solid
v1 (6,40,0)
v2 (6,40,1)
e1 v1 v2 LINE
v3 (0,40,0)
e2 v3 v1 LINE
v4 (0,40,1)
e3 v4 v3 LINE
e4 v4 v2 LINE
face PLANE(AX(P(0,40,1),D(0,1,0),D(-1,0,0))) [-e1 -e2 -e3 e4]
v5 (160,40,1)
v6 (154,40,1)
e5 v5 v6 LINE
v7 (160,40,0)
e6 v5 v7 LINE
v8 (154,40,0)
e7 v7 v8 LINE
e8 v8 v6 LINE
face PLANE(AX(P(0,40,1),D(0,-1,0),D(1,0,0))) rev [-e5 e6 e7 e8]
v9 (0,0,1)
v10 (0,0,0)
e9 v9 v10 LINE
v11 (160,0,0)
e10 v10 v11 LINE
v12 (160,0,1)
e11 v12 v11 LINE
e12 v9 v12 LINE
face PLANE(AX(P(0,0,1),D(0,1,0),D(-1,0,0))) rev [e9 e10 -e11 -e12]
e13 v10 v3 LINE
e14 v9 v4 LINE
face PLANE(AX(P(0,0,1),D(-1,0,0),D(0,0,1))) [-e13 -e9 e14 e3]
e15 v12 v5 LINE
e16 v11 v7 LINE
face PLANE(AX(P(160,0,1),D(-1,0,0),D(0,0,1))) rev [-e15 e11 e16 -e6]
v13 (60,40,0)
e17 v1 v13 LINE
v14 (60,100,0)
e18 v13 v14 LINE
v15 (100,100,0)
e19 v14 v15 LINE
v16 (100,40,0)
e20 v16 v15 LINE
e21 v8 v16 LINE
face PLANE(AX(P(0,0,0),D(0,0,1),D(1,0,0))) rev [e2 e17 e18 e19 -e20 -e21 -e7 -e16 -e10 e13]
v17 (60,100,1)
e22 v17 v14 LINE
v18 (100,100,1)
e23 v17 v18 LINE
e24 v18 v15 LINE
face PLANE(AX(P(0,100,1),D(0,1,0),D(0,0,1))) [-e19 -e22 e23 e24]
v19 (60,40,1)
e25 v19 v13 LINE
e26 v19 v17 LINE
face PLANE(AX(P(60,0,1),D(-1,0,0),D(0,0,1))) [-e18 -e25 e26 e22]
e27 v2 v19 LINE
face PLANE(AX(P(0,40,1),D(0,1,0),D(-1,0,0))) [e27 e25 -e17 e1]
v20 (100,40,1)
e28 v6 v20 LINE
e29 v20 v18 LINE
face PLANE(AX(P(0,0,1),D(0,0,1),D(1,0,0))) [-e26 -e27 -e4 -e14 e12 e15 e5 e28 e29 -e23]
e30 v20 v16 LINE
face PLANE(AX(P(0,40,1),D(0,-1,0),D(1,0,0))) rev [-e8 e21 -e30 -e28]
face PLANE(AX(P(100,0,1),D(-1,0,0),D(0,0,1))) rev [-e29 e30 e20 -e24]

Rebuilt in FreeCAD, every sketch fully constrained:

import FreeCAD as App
import Part
import Sketcher


def add_polygon(sketch, points):
    """Adds a closed chain of lines whose ends are joined by coincident constraints."""
    first, n = sketch.GeometryCount, len(points)
    for a, b in zip(points, points[1:] + points[:1]):
        sketch.addGeometry(Part.LineSegment(App.Vector(*a, 0), App.Vector(*b, 0)), False)
    for i in range(n):
        sketch.addConstraint(Sketcher.Constraint("Coincident", first + i, 2, first + (i + 1) % n, 1))

doc = App.newDocument("Part")
params = doc.addObject("Spreadsheet::Sheet", "Params")
for row, (alias, value) in enumerate([
    ("sketch1_width", "60 mm"),
    ("sketch1_width2", "160 mm"),
    ("pad1_length", "1 mm"),
], start=1):
    params.set(f"A{row}", alias)
    params.set(f"B{row}", "=" + value)
    params.setAlias(f"B{row}", alias)

body = doc.addObject("PartDesign::Body", "Body")

# Sketch on XY plane
sketch1 = body.newObject("Sketcher::SketchObject", "Sketch")
sketch1.AttachmentSupport = (doc.getObject("XY_Plane"), [""])
sketch1.MapMode = "FlatFace"
add_polygon(sketch1, [(60, 100), (60, 40), (0, 40), (0, 0), (160, 0), (160, 40), (100, 40), (100, 100)])  # lines 0-7
sketch1.addConstraint(Sketcher.Constraint("Vertical", 0))
sketch1.addConstraint(Sketcher.Constraint("Horizontal", 1))
sketch1.addConstraint(Sketcher.Constraint("Vertical", 2))
sketch1.addConstraint(Sketcher.Constraint("Horizontal", 3))
sketch1.addConstraint(Sketcher.Constraint("Vertical", 4))
sketch1.addConstraint(Sketcher.Constraint("Horizontal", 5))
sketch1.addConstraint(Sketcher.Constraint("Vertical", 6))
sketch1.addConstraint(Sketcher.Constraint("Horizontal", 7))
sketch1.addConstraint(Sketcher.Constraint("Coincident", 2, 2, -1, 1))
sketch1.addConstraint(Sketcher.Constraint("Horizontal", 1, 2, 4, 2))
sketch1.addConstraint(Sketcher.Constraint("Equal", 1, 5))
sketch1.addConstraint(Sketcher.Constraint("Equal", 5, 0))
sketch1.addConstraint(Sketcher.Constraint("Equal", 7, 2))
sketch1.addConstraint(Sketcher.Constraint("DistanceX", 1, 2, 1, 1, 60.0))
sketch1.addConstraint(Sketcher.Constraint("DistanceX", 3, 1, 3, 2, 160.0))
sketch1.setExpression("Constraints[21]", "Params.sketch1_width")
sketch1.setExpression("Constraints[22]", "Params.sketch1_width2")
pad1 = body.newObject("PartDesign::Pad", "Pad")
pad1.Profile = sketch1
pad1.setExpression("Length", "Params.pad1_length")

doc.recompute()
